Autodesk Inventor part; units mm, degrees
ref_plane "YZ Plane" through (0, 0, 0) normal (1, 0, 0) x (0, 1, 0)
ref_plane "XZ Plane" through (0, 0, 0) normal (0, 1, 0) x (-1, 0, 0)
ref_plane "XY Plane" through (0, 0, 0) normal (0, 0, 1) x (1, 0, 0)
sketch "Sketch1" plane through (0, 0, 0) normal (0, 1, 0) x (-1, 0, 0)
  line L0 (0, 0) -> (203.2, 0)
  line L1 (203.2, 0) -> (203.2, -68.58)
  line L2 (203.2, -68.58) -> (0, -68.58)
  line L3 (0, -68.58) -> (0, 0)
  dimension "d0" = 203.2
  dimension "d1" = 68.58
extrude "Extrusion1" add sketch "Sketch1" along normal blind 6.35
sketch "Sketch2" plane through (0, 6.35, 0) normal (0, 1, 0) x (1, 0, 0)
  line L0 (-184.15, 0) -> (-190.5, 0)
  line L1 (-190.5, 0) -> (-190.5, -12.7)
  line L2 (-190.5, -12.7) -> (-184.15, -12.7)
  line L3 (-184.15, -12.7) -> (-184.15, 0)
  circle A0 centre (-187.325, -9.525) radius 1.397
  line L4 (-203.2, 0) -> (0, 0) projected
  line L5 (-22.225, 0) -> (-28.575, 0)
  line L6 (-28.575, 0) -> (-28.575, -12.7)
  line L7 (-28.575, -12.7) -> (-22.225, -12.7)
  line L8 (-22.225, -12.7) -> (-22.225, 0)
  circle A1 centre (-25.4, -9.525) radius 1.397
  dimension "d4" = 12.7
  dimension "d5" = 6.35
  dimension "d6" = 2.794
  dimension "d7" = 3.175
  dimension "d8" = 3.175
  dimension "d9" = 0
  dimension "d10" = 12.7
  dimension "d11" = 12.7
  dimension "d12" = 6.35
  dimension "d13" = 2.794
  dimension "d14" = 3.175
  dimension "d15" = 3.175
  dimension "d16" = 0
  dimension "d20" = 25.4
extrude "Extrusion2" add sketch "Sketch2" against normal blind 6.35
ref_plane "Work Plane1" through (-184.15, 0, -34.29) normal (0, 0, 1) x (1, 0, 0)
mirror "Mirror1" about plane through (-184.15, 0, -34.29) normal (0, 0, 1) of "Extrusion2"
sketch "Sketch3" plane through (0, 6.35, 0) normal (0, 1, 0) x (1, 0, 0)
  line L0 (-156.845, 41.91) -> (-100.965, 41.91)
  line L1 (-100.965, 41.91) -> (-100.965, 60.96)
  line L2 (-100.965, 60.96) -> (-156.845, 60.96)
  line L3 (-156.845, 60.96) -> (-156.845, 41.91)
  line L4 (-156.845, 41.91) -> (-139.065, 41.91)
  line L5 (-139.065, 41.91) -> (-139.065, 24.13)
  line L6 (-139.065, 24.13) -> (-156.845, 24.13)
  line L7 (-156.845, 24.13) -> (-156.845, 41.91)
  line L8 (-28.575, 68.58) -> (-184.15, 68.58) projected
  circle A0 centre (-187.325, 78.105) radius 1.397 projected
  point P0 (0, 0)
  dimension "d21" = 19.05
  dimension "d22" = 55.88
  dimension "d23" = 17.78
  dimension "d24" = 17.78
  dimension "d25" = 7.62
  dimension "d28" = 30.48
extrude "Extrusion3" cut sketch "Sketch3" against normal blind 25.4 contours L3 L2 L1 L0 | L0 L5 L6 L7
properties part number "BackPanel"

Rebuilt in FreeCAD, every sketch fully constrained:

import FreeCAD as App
import Part
import Sketcher
from FreeCAD import Vector
Q = App.Units.Quantity

doc = App.newDocument("Part")
body = doc.addObject("PartDesign::Body", "Body")

# Sketch on XZ plane
sketch1 = doc.addObject("Sketcher::SketchObject", "Sketch")
body.addObject(sketch1)
sketch1.AttachmentSupport = (doc.XZ_Plane, [""])
sketch1.MapMode = "FlatFace"
sketch1.addGeometry([
    Part.LineSegment(Vector(-203, 0, 0), Vector(0, 0, 0)),
    Part.LineSegment(Vector(0, 0, 0), Vector(0, -69, 0)),
    Part.LineSegment(Vector(0, -69, 0), Vector(-203, -69, 0)),
    Part.LineSegment(Vector(-203, -69, 0), Vector(-203, 0, 0)),
], False)
sketch1.addConstraint([
    Sketcher.Constraint("Coincident", 0, 2, 1, 1),
    Sketcher.Constraint("Coincident", 1, 2, 2, 1),
    Sketcher.Constraint("Coincident", 2, 2, 3, 1),
    Sketcher.Constraint("Coincident", 3, 2, 0, 1),
    Sketcher.Constraint("Horizontal", 0),
    Sketcher.Constraint("Vertical", 1),
    Sketcher.Constraint("Horizontal", 2),
    Sketcher.Constraint("Vertical", 3),
    Sketcher.Constraint("Coincident", 0, 2, -1, 1),
    Sketcher.Constraint("DistanceX", 0, 1, 0, 2, Q("8 in")),
    Sketcher.Constraint("DistanceY", 1, 2, 1, 1, Q("2.7 in")),
])
pad1 = doc.addObject("PartDesign::Pad", "Pad")
body.addObject(pad1)
pad1.Profile = sketch1
pad1.Length = Q("0.25 in")
pad1.Reversed = True

# Sketch on XZ plane
sketch2 = doc.addObject("Sketcher::SketchObject", "Sketch001")
body.addObject(sketch2)
sketch2.AttachmentSupport = (doc.XZ_Plane, [""])
sketch2.MapMode = "FlatFace"
sketch2.AttachmentOffset = App.Placement(Vector(0, 0, -0.25 * 25.4), App.Rotation())
sketch2.addGeometry([
    Part.LineSegment(Vector(-184.2, 12.7, 0), Vector(-184.2, 0, 0)),  # 0
    Part.LineSegment(Vector(-184.2, 0, 0), Vector(-190.5, 0, 0)),  # 1
    Part.LineSegment(Vector(-190.5, 0, 0), Vector(-190.5, 12.7, 0)),  # 2
    Part.LineSegment(Vector(-190.5, 12.7, 0), Vector(-184.2, 12.7, 0)),  # 3
    Part.Circle(Vector(-187.3, 9.5, 0), Vector(0, 0, 1), 1.4),  # 4
    Part.LineSegment(Vector(-22.2, 0, 0), Vector(-28.6, 0, 0)),  # 5
    Part.LineSegment(Vector(-28.6, 0, 0), Vector(-28.6, 12.7, 0)),  # 6
    Part.LineSegment(Vector(-28.6, 12.7, 0), Vector(-22.2, 12.7, 0)),  # 7
    Part.LineSegment(Vector(-22.2, 12.7, 0), Vector(-22.2, 0, 0)),  # 8
    Part.Circle(Vector(-25.4, 9.5, 0), Vector(0, 0, 1), 1.4),  # 9
], False)
sketch2.addConstraint([
    Sketcher.Constraint("Coincident", 0, 2, 1, 1),
    Sketcher.Constraint("Coincident", 1, 2, 2, 1),
    Sketcher.Constraint("Coincident", 2, 2, 3, 1),
    Sketcher.Constraint("Coincident", 3, 2, 0, 1),
    Sketcher.Constraint("Coincident", 5, 2, 6, 1),
    Sketcher.Constraint("Coincident", 6, 2, 7, 1),
    Sketcher.Constraint("Coincident", 7, 2, 8, 1),
    Sketcher.Constraint("Coincident", 8, 2, 5, 1),
    Sketcher.Constraint("Vertical", 0),
    Sketcher.Constraint("Horizontal", 1),
    Sketcher.Constraint("Vertical", 2),
    Sketcher.Constraint("Horizontal", 3),
    Sketcher.Constraint("Horizontal", 5),
    Sketcher.Constraint("Vertical", 6),
    Sketcher.Constraint("Horizontal", 7),
    Sketcher.Constraint("Vertical", 8),
    Sketcher.Constraint("Equal", 4, 9),
    Sketcher.Constraint("PointOnObject", 0, 2, -1),
    Sketcher.Constraint("PointOnObject", 5, 2, -1),
    Sketcher.Constraint("Horizontal", 4, 3, 9, 3),
    Sketcher.Constraint("Horizontal", 3, 2, 6, 2),
    Sketcher.Constraint("Equal", 3, 5),
    Sketcher.Constraint("Diameter", 4, Q("0.11 in")),
    Sketcher.Constraint("DistanceY", 0, 2, 0, 1, Q("0.5 in")),
    Sketcher.Constraint("DistanceX", 9, 3, -1, 1, Q("1 in")),
    Sketcher.Constraint("DistanceX", 1, 2, 1, 1, Q("0.25 in")),
    Sketcher.Constraint("DistanceX", 4, 3, 0, 2, Q("0.125 in")),
    Sketcher.Constraint("DistanceY", 4, 3, 2, 2, Q("0.125 in")),
    Sketcher.Constraint("DistanceX", 5, 2, 9, 3, Q("0.125 in")),
    Sketcher.Constraint("DistanceX", 1, 2, -1, 1, Q("7.5 in")),
])
pad2 = doc.addObject("PartDesign::Pad", "Pad001")
body.addObject(pad2)
pad2.Profile = sketch2
pad2.Length = Q("0.25 in")
doc.recompute()

datumplane = doc.addObject("PartDesign::Plane", "DatumPlane")
body.addObject(datumplane)
datumplane.AttachmentSupport = (doc.XY_Plane, [""])
datumplane.MapMode = "FlatFace"
datumplane.AttachmentOffset = App.Placement(Vector(0, 0, -1.35 * 25.4), App.Rotation())
mirrored = doc.addObject("PartDesign::Mirrored", "Mirrored")
body.addObject(mirrored)
mirrored.Originals = [pad2]
mirrored.MirrorPlane = (datumplane, [""])
body.Tip = mirrored

# Sketch on XZ plane
sketch3 = doc.addObject("Sketcher::SketchObject", "Sketch002")
body.addObject(sketch3)
sketch3.AttachmentSupport = (doc.XZ_Plane, [""])
sketch3.MapMode = "FlatFace"
sketch3.AttachmentOffset = App.Placement(Vector(0, 0, -0.25 * 25.4), App.Rotation())
sketch3.addGeometry([
    Part.LineSegment(Vector(-157, -61, 0), Vector(-157, -24, 0)),  # 0
    Part.LineSegment(Vector(-157, -24, 0), Vector(-139, -24, 0)),  # 1
    Part.LineSegment(Vector(-139, -24, 0), Vector(-139, -42, 0)),  # 2
    Part.LineSegment(Vector(-139, -42, 0), Vector(-101, -42, 0)),  # 3
    Part.LineSegment(Vector(-101, -42, 0), Vector(-101, -61, 0)),  # 4
    Part.LineSegment(Vector(-101, -61, 0), Vector(-157, -61, 0)),  # 5
], False)
sketch3.addConstraint([
    Sketcher.Constraint("Coincident", 0, 2, 1, 1),
    Sketcher.Constraint("Coincident", 1, 2, 2, 1),
    Sketcher.Constraint("Coincident", 2, 2, 3, 1),
    Sketcher.Constraint("Coincident", 3, 2, 4, 1),
    Sketcher.Constraint("Coincident", 4, 2, 5, 1),
    Sketcher.Constraint("Coincident", 5, 2, 0, 1),
    Sketcher.Constraint("Vertical", 0),
    Sketcher.Constraint("Horizontal", 1),
    Sketcher.Constraint("Vertical", 2),
    Sketcher.Constraint("Horizontal", 3),
    Sketcher.Constraint("Vertical", 4),
    Sketcher.Constraint("Horizontal", 5),
    Sketcher.Constraint("Equal", 1, 2),
    Sketcher.Constraint("DistanceX", 1, 1, 1, 2, Q("0.7 in")),
    Sketcher.Constraint("DistanceX", 5, 2, 5, 1, Q("2.2 in")),
    Sketcher.Constraint("DistanceY", 4, 2, 4, 1, Q("0.75 in")),
    Sketcher.Constraint("DistanceY", 4, 2, -1, 1, Q("2.4 in")),
    Sketcher.Constraint("DistanceX", 0, 2, -1, 1, Q("6.175 in")),
])
pocket1 = doc.addObject("PartDesign::Pocket", "Pocket")
body.addObject(pocket1)
pocket1.Profile = sketch3
pocket1.Length = Q("1 in")
pocket1.Reversed = True

doc.recompute()
